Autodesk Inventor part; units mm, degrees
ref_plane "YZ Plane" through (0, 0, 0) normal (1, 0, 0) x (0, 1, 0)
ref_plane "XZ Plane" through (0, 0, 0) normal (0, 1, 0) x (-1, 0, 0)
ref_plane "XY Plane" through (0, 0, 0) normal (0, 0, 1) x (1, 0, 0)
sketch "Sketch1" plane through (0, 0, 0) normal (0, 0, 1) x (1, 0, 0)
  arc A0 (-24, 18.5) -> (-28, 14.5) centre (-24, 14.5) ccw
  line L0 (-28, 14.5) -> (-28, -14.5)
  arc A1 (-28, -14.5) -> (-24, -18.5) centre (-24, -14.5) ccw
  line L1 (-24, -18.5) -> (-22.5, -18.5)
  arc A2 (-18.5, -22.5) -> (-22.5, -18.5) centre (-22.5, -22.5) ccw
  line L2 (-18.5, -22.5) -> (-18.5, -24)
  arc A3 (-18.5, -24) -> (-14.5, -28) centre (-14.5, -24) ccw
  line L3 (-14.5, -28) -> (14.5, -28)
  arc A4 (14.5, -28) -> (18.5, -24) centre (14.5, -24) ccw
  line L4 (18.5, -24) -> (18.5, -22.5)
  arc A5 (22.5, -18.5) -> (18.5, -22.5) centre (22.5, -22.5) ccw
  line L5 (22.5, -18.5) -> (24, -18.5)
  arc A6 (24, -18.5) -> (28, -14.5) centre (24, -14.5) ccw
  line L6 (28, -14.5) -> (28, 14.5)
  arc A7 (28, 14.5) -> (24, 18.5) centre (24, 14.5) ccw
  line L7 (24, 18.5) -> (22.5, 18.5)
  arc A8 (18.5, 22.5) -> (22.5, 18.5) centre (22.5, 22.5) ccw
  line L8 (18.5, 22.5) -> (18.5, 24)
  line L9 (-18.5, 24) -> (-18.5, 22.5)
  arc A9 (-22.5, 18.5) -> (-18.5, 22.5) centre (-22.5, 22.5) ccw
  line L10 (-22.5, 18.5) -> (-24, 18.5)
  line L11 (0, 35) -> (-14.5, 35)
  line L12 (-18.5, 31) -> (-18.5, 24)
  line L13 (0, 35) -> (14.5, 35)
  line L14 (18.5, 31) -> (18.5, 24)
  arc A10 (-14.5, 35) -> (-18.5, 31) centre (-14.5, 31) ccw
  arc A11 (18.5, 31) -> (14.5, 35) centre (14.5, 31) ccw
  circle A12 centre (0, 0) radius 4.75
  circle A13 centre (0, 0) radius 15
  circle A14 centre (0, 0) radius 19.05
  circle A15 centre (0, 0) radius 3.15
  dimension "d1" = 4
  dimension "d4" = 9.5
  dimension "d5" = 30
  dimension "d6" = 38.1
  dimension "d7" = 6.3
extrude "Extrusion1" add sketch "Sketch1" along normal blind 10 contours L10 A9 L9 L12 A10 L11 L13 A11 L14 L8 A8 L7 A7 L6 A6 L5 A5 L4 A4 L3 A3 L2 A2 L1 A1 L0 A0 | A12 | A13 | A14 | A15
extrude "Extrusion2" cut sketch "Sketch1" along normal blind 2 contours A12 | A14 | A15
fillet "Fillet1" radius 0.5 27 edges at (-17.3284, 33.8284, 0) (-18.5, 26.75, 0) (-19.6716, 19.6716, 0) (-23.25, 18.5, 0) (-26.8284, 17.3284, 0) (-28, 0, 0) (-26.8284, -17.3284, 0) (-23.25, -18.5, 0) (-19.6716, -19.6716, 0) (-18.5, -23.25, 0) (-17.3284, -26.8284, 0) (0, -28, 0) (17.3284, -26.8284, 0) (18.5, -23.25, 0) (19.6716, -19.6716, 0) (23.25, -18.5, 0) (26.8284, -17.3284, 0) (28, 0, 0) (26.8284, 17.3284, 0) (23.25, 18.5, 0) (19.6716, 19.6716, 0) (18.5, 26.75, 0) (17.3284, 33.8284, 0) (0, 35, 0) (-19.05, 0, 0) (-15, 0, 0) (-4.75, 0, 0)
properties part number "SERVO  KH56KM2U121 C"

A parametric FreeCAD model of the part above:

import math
import FreeCAD as App
import Part
import Sketcher

V = App.Vector
Q = App.Units.Quantity


def edges_at(feature, points):
    """Names of the edges that pass closest to the given points."""
    edges = feature.Shape.Edges
    near = lambda p: min(range(len(edges)), key=lambda i: edges[i].distToShape(Part.Vertex(*p))[0])
    return sorted({f"Edge{near(p) + 1}" for p in points})

doc = App.newDocument("Part")
params = doc.addObject("Spreadsheet::Sheet", "Params")
for row, (alias, value) in enumerate([
    ("sketch1_radius", "4 mm"),
    ("sketch1_width", "29 mm"),
    ("sketch1_height", "8.5 mm"),
    ("pad1_length", "10 mm"),
    ("sketch2_diameter", "30 mm"),
    ("sketch2_diameter2", "9.5 mm"),
    ("sketch2_diameter3", "38.1 mm"),
    ("pocket1_length", "2 mm"),
    ("fillet_radius", "0.5 mm"),
], start=1):
    params.set(f"A{row}", alias)
    params.set(f"B{row}", "=" + value)
    params.setAlias(f"B{row}", alias)

body = doc.addObject("PartDesign::Body", "Body")

# Sketch on XY plane
sketch1 = body.newObject("Sketcher::SketchObject", "Sketch")
sketch1.AttachmentSupport = (doc.getObject("XY_Plane"), [""])
sketch1.MapMode = "FlatFace"
sketch1.addGeometry([
    Part.LineSegment(V(-22.5, 18.5, 0), V(-24, 18.5, 0)),  # 0
    Part.ArcOfCircle(Part.Circle(V(-24, 14.5, 0), V(0, 0, 1), 4), math.radians(90), math.radians(180)),  # 1
    Part.LineSegment(V(-28, 14.5, 0), V(-28, -14.5, 0)),  # 2
    Part.ArcOfCircle(Part.Circle(V(-24, -14.5, 0), V(0, 0, 1), 4), math.radians(180), math.radians(270)),  # 3
    Part.LineSegment(V(-24, -18.5, 0), V(-22.5, -18.5, 0)),  # 4
    Part.ArcOfCircle(Part.Circle(V(-22.5, -22.5, 0), V(0, 0, 1), 4), math.radians(0), math.radians(90)),  # 5
    Part.LineSegment(V(-18.5, -22.5, 0), V(-18.5, -24, 0)),  # 6
    Part.ArcOfCircle(Part.Circle(V(-14.5, -24, 0), V(0, 0, 1), 4), math.radians(180), math.radians(270)),  # 7
    Part.LineSegment(V(-14.5, -28, 0), V(14.5, -28, 0)),  # 8
    Part.ArcOfCircle(Part.Circle(V(14.5, -24, 0), V(0, 0, 1), 4), math.radians(-90), math.radians(0)),  # 9
    Part.LineSegment(V(18.5, -24, 0), V(18.5, -22.5, 0)),  # 10
    Part.ArcOfCircle(Part.Circle(V(22.5, -22.5, 0), V(0, 0, 1), 4), math.radians(90), math.radians(180)),  # 11
    Part.LineSegment(V(22.5, -18.5, 0), V(24, -18.5, 0)),  # 12
    Part.ArcOfCircle(Part.Circle(V(24, -14.5, 0), V(0, 0, 1), 4), math.radians(-90), math.radians(0)),  # 13
    Part.LineSegment(V(28, -14.5, 0), V(28, 14.5, 0)),  # 14
    Part.ArcOfCircle(Part.Circle(V(24, 14.5, 0), V(0, 0, 1), 4), math.radians(0), math.radians(90)),  # 15
    Part.LineSegment(V(24, 18.5, 0), V(22.5, 18.5, 0)),  # 16
    Part.ArcOfCircle(Part.Circle(V(22.5, 22.5, 0), V(0, 0, 1), 4), math.radians(180), math.radians(270)),  # 17
    Part.LineSegment(V(18.5, 22.5, 0), V(18.5, 31, 0)),  # 18
    Part.ArcOfCircle(Part.Circle(V(14.5, 31, 0), V(0, 0, 1), 4), math.radians(0), math.radians(90)),  # 19
    Part.LineSegment(V(14.5, 35, 0), V(-14.5, 35, 0)),  # 20
    Part.ArcOfCircle(Part.Circle(V(-14.5, 31, 0), V(0, 0, 1), 4), math.radians(90), math.radians(180)),  # 21
    Part.LineSegment(V(-18.5, 31, 0), V(-18.5, 22.5, 0)),  # 22
    Part.ArcOfCircle(Part.Circle(V(-22.5, 22.5, 0), V(0, 0, 1), 4), math.radians(-90), math.radians(0)),  # 23
], False)
sketch1.addConstraint([
    Sketcher.Constraint("Tangent", 0, 2, 1, 1),
    Sketcher.Constraint("Tangent", 1, 2, 2, 1),
    Sketcher.Constraint("Tangent", 2, 2, 3, 1),
    Sketcher.Constraint("Tangent", 3, 2, 4, 1),
    Sketcher.Constraint("Tangent", 4, 2, 5, 2),
    Sketcher.Constraint("Tangent", 5, 1, 6, 1),
    Sketcher.Constraint("Tangent", 6, 2, 7, 1),
    Sketcher.Constraint("Tangent", 7, 2, 8, 1),
    Sketcher.Constraint("Tangent", 8, 2, 9, 1),
    Sketcher.Constraint("Tangent", 9, 2, 10, 1),
    Sketcher.Constraint("Tangent", 10, 2, 11, 2),
    Sketcher.Constraint("Tangent", 11, 1, 12, 1),
    Sketcher.Constraint("Tangent", 12, 2, 13, 1),
    Sketcher.Constraint("Tangent", 13, 2, 14, 1),
    Sketcher.Constraint("Tangent", 14, 2, 15, 1),
    Sketcher.Constraint("Tangent", 15, 2, 16, 1),
    Sketcher.Constraint("Tangent", 16, 2, 17, 2),
    Sketcher.Constraint("Tangent", 17, 1, 18, 1),
    Sketcher.Constraint("Tangent", 18, 2, 19, 1),
    Sketcher.Constraint("Tangent", 19, 2, 20, 1),
    Sketcher.Constraint("Tangent", 20, 2, 21, 1),
    Sketcher.Constraint("Tangent", 21, 2, 22, 1),
    Sketcher.Constraint("Tangent", 22, 2, 23, 2),
    Sketcher.Constraint("Tangent", 23, 1, 0, 1),
    Sketcher.Constraint("Horizontal", 0),
    Sketcher.Constraint("Vertical", 2),
    Sketcher.Constraint("Horizontal", 4),
    Sketcher.Constraint("Vertical", 6),
    Sketcher.Constraint("Horizontal", 8),
    Sketcher.Constraint("Vertical", 10),
    Sketcher.Constraint("Horizontal", 12),
    Sketcher.Constraint("Vertical", 14),
    Sketcher.Constraint("Horizontal", 16),
    Sketcher.Constraint("Vertical", 18),
    Sketcher.Constraint("Horizontal", 20),
    Sketcher.Constraint("Vertical", 22),
    Sketcher.Constraint("Equal", 1, 3),
    Sketcher.Constraint("Equal", 3, 5),
    Sketcher.Constraint("Equal", 5, 7),
    Sketcher.Constraint("Equal", 7, 9),
    Sketcher.Constraint("Equal", 9, 11),
    Sketcher.Constraint("Equal", 11, 13),
    Sketcher.Constraint("Equal", 13, 15),
    Sketcher.Constraint("Equal", 15, 17),
    Sketcher.Constraint("Equal", 17, 19),
    Sketcher.Constraint("Equal", 19, 21),
    Sketcher.Constraint("Equal", 21, 23),
    Sketcher.Constraint("Symmetric", 1, 3, 13, 3, -1, 1),
    Sketcher.Constraint("Symmetric", 5, 3, 17, 3, -1, 1),
    Sketcher.Constraint("Symmetric", 5, 3, 11, 3, -2),
    Sketcher.Constraint("Vertical", 7, 3, 21, 3),
    Sketcher.Constraint("Equal", 20, 2),
    Sketcher.Constraint("Equal", 16, 6),
    Sketcher.Constraint("Radius", 1, Q("4 mm")),
    Sketcher.Constraint("DistanceX", 3, 3, 7, 3, Q("9.5 mm")),
    Sketcher.Constraint("DistanceX", 8, 1, 8, 2, Q("29 mm")),
    Sketcher.Constraint("DistanceY", 18, 1, 18, 2, Q("8.5 mm")),
])
sketch1.setExpression("Constraints[53]", "Params.sketch1_radius")
sketch1.setExpression("Constraints[55]", "Params.sketch1_width")
sketch1.setExpression("Constraints[56]", "Params.sketch1_height")
pad1 = body.newObject("PartDesign::Pad", "Pad")
pad1.Profile = sketch1
pad1.setExpression("Length", "Params.pad1_length")

# Sketch on XY plane
sketch2 = body.newObject("Sketcher::SketchObject", "Sketch001")
sketch2.AttachmentSupport = (doc.getObject("XY_Plane"), [""])
sketch2.MapMode = "FlatFace"
sketch2.addGeometry([
    Part.Circle(V(0, 0, 0), V(0, 0, 1), 4.8),
    Part.Circle(V(0, 0, 0), V(0, 0, 1), 19.1),
    Part.Circle(V(0, 0, 0), V(0, 0, 1), 15),
], False)
sketch2.addConstraint([
    Sketcher.Constraint("Coincident", 0, 3, -1, 1),
    Sketcher.Constraint("Coincident", 1, 3, -1, 1),
    Sketcher.Constraint("Coincident", 2, 3, -1, 1),
    Sketcher.Constraint("Diameter", 2, Q("30 mm")),
    Sketcher.Constraint("Diameter", 0, Q("9.5 mm")),
    Sketcher.Constraint("Diameter", 1, Q("38.1 mm")),
])
sketch2.setExpression("Constraints[3]", "Params.sketch2_diameter")
sketch2.setExpression("Constraints[4]", "Params.sketch2_diameter2")
sketch2.setExpression("Constraints[5]", "Params.sketch2_diameter3")
pocket1 = body.newObject("PartDesign::Pocket", "Pocket")
pocket1.Profile = sketch2
pocket1.setExpression("Length", "Params.pocket1_length")
pocket1.Reversed = True
doc.recompute()

fillet = body.newObject("PartDesign::Fillet", "Fillet")
fillet.Base = (pocket1, edges_at(pocket1, [
    (-17.328, 33.828, 0),
    (-18.5, 26.75, 0),
    (-19.672, 19.672, 0),
    (-23.25, 18.5, 0),
    (-26.828, 17.328, 0),
    (-28, 0, 0),
    (-26.828, -17.328, 0),
    (-23.25, -18.5, 0),
    (-19.672, -19.672, 0),
    (-18.5, -23.25, 0),
    (-17.328, -26.828, 0),
    (0, -28, 0),
    (17.328, -26.828, 0),
    (18.5, -23.25, 0),
    (19.672, -19.672, 0),
    (23.25, -18.5, 0),
    (26.828, -17.328, 0),
    (28, 0, 0),
    (26.828, 17.328, 0),
    (23.25, 18.5, 0),
    (19.672, 19.672, 0),
    (18.5, 26.75, 0),
    (17.328, 33.828, 0),
    (0, 35, 0),
    (-19.05, 0, 0),
    (-15, 0, 0),
    (-4.75, 0, 0),
]))
fillet.setExpression("Radius", "Params.fillet_radius")

doc.recompute()
